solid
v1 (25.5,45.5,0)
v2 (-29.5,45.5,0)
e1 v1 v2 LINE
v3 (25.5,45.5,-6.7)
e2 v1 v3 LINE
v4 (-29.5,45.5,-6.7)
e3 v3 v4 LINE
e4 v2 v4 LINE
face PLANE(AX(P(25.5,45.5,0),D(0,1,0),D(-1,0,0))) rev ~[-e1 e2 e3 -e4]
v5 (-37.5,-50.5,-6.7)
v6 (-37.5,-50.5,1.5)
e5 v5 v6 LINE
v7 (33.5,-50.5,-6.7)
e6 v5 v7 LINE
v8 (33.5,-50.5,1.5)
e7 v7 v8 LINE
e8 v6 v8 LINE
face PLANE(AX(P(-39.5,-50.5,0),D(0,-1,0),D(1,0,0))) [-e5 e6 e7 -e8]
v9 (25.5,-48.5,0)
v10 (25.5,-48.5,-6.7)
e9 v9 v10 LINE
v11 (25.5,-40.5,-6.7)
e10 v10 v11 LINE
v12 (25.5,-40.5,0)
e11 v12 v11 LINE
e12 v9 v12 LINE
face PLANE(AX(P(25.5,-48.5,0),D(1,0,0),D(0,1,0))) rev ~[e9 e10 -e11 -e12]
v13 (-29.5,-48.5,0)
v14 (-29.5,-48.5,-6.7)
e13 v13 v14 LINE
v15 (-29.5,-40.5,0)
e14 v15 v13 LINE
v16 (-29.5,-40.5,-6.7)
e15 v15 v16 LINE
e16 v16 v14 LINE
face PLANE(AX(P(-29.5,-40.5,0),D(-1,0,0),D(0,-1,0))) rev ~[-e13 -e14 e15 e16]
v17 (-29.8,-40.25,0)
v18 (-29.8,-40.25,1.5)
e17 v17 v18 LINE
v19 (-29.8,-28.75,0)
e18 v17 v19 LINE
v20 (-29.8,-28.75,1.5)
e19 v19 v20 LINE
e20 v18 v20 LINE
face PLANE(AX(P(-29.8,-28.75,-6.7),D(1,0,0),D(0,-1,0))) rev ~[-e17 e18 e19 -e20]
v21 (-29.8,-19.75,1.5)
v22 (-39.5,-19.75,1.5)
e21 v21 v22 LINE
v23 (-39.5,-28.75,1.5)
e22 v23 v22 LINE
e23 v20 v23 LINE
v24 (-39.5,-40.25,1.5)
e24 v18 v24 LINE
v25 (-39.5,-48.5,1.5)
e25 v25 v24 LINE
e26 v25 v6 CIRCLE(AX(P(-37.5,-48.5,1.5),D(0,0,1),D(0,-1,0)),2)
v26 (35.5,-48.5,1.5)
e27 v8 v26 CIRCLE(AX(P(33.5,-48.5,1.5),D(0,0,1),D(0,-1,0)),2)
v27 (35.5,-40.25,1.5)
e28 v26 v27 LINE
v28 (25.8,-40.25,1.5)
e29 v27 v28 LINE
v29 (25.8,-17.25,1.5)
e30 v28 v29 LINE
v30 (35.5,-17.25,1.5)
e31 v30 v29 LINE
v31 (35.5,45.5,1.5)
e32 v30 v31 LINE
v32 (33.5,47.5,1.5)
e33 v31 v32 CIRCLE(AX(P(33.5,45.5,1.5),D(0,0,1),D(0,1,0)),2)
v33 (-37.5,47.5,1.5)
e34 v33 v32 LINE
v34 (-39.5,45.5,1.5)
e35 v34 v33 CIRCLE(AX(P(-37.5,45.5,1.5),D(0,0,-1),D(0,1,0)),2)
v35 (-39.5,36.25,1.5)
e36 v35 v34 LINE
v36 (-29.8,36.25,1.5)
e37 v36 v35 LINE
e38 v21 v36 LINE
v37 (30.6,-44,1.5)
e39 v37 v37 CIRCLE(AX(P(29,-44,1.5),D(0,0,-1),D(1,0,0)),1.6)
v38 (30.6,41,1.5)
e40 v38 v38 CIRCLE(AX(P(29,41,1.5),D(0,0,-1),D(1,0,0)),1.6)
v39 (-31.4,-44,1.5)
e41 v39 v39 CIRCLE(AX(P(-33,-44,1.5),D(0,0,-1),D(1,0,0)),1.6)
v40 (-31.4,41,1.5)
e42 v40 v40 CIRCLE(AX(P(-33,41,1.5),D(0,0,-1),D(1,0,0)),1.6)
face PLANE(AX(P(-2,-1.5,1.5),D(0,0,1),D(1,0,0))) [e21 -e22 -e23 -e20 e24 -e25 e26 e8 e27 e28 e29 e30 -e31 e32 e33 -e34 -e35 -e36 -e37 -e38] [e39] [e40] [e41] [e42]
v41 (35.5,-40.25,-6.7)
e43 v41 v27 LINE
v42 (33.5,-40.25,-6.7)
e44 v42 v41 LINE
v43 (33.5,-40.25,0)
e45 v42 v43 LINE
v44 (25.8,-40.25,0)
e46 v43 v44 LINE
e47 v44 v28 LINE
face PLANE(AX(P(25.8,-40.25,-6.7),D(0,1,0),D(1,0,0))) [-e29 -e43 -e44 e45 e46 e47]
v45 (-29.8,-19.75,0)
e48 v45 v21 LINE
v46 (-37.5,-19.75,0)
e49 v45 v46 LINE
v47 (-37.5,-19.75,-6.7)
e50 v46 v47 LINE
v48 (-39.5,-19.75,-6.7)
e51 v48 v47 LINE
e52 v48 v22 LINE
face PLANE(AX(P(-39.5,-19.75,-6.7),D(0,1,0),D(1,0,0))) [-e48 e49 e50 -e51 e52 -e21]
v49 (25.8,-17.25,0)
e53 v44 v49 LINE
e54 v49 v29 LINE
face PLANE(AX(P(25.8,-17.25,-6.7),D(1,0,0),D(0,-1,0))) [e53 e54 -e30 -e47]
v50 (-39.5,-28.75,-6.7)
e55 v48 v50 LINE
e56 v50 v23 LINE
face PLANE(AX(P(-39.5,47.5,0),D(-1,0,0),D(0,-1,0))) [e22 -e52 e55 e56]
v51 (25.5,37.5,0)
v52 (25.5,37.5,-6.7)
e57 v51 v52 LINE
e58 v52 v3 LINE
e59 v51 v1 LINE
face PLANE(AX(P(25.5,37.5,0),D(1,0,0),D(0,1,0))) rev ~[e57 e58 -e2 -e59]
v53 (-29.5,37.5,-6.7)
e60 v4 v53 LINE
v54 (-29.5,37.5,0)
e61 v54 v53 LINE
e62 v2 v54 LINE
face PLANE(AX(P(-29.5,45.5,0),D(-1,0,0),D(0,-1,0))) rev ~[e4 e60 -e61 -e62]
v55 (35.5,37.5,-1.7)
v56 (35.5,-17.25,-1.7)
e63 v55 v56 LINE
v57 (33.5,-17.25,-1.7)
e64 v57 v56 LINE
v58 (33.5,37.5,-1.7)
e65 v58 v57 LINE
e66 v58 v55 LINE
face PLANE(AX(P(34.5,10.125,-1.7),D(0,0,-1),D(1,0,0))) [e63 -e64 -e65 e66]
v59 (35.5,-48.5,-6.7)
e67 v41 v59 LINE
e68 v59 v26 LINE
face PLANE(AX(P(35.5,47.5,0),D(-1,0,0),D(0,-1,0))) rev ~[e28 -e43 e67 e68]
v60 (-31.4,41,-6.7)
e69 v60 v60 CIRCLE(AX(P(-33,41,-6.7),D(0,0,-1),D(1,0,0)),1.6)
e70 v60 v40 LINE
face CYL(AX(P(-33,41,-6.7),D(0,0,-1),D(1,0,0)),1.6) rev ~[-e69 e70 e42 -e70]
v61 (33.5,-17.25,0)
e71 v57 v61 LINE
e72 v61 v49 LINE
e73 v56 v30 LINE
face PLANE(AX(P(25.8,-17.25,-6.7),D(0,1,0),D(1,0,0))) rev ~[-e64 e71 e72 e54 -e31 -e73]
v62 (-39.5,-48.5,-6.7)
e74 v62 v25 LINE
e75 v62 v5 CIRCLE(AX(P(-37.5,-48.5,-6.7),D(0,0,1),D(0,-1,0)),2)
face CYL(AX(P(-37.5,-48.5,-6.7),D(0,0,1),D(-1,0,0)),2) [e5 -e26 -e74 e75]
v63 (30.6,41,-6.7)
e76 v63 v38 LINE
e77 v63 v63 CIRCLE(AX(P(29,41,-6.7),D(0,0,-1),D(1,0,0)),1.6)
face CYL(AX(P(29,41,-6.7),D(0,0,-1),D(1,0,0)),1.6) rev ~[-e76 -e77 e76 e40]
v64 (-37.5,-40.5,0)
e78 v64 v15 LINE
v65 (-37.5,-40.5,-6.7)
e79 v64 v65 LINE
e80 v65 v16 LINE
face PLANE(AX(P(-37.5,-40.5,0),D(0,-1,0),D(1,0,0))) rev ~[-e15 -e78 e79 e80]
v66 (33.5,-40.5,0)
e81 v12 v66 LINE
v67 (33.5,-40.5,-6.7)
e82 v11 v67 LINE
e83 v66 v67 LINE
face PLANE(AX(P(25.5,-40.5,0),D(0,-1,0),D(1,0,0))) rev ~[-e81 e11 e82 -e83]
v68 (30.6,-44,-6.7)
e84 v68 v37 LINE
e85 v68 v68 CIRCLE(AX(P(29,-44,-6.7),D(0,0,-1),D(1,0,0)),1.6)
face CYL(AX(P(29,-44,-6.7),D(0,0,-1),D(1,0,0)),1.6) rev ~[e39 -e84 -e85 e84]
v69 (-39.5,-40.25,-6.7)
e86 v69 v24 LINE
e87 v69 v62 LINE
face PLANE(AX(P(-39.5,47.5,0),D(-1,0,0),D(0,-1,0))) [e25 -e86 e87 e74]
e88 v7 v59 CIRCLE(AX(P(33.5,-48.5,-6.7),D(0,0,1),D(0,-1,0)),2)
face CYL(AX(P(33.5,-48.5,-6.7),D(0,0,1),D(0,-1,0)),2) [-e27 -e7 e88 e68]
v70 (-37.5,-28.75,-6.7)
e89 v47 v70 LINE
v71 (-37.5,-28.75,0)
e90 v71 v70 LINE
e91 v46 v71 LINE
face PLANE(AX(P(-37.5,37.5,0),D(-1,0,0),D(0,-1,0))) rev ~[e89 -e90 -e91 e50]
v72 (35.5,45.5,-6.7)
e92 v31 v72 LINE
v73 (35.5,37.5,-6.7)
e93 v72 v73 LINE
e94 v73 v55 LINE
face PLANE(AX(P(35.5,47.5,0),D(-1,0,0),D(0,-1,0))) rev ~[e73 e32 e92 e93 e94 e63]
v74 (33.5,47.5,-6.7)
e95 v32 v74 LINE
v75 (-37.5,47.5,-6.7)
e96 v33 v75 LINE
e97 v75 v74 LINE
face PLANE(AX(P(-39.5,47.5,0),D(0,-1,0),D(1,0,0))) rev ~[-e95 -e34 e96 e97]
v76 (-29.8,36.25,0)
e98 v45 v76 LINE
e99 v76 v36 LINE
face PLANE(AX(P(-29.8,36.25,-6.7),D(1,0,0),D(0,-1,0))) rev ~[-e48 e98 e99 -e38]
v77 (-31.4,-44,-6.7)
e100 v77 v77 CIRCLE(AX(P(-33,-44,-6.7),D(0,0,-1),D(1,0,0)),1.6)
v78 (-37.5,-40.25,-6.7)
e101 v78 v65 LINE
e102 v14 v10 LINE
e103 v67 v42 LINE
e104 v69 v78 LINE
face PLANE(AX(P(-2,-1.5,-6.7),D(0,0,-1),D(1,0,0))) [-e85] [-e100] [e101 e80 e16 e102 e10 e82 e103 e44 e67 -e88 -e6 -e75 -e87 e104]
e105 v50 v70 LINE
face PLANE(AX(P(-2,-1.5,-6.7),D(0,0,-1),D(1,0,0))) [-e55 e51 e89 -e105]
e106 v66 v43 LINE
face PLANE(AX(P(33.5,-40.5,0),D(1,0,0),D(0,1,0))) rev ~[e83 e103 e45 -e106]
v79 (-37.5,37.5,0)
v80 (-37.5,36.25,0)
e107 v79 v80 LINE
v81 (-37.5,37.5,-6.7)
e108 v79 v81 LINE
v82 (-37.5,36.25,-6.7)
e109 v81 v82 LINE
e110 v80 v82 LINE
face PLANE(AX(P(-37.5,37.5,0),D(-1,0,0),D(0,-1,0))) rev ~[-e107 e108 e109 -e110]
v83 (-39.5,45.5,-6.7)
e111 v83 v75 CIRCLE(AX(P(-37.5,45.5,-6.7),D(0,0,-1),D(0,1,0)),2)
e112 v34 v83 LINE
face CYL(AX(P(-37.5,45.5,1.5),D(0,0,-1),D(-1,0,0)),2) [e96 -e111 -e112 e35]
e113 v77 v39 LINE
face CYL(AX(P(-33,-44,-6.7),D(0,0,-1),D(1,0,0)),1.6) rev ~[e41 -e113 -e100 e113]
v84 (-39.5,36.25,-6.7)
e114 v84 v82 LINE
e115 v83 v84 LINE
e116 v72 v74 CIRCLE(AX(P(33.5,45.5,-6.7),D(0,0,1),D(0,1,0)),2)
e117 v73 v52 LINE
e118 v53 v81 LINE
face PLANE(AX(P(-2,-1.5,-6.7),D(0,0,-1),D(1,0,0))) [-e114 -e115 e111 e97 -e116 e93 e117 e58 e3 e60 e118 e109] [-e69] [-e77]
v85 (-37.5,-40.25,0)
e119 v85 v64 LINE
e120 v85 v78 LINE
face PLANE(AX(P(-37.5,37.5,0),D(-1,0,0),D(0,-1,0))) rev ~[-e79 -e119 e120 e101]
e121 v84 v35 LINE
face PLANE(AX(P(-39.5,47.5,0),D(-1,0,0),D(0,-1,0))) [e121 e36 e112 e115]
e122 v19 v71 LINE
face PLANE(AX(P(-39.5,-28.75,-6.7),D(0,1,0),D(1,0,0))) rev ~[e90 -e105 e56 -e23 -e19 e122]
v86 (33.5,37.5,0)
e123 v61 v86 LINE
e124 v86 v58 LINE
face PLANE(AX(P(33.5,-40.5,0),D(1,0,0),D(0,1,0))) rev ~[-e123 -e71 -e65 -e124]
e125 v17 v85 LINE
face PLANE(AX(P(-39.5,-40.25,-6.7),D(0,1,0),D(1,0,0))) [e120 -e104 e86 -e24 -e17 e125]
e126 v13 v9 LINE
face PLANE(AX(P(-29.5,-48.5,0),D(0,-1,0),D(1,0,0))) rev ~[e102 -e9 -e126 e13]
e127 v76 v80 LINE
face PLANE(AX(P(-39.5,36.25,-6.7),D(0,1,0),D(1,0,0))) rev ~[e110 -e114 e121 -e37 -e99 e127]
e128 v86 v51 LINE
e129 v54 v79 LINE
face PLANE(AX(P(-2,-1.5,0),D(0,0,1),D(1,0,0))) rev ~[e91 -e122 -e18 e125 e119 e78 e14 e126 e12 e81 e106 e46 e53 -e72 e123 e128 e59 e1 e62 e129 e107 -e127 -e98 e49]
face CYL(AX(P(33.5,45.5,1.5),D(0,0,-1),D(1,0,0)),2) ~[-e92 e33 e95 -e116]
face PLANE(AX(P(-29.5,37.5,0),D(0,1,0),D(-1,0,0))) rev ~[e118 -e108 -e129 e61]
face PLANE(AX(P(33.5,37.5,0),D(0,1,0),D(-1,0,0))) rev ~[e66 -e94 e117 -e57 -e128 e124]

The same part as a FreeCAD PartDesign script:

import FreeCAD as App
import Part
import Sketcher

V = App.Vector
Q = App.Units.Quantity


def edges_at(feature, points):
    """Names of the edges that pass closest to the given points."""
    edges = feature.Shape.Edges
    near = lambda p: min(range(len(edges)), key=lambda i: edges[i].distToShape(Part.Vertex(*p))[0])
    return sorted({f"Edge{near(p) + 1}" for p in points})


def add_polygon(sketch, points):
    """Adds a closed chain of lines whose ends are joined by coincident constraints."""
    first, n = sketch.GeometryCount, len(points)
    for a, b in zip(points, points[1:] + points[:1]):
        sketch.addGeometry(Part.LineSegment(App.Vector(*a, 0), App.Vector(*b, 0)), False)
    for i in range(n):
        sketch.addConstraint(Sketcher.Constraint("Coincident", first + i, 2, first + (i + 1) % n, 1))

doc = App.newDocument("Part")
body = doc.addObject("PartDesign::Body", "Body")

sketch1 = body.newObject("Sketcher::SketchObject", "Sketch")
sketch1.AttachmentSupport = (doc.getObject("XY_Plane"), [""])
sketch1.MapMode = "FlatFace"
add_polygon(sketch1, [(-39.5, 47.5), (-39.5, -50.5), (35.5, -50.5), (35.5, 47.5)])
sketch1.addConstraint(Sketcher.Constraint("Vertical", 0))
sketch1.addConstraint(Sketcher.Constraint("Horizontal", 1))
sketch1.addConstraint(Sketcher.Constraint("Vertical", 2))
sketch1.addConstraint(Sketcher.Constraint("Horizontal", 3))
sketch1.addConstraint(Sketcher.Constraint("DistanceX", 1, 1, 1, 2, Q("75 mm")))
sketch1.addConstraint(Sketcher.Constraint("DistanceY", 0, 2, 0, 1, Q("98 mm")))
sketch1.addConstraint(Sketcher.Constraint("DistanceX", 0, 2, -1, 1, Q("39.5 mm")))
sketch1.addConstraint(Sketcher.Constraint("DistanceY", 0, 2, -1, 1, Q("50.5 mm")))
pad1 = body.newObject("PartDesign::Pad", "Pad")
pad1.Profile = sketch1
pad1.Length = 1.5

sketch2 = body.newObject("Sketcher::SketchObject", "Sketch001")
sketch2.AttachmentSupport = (doc.getObject("XY_Plane"), [""])
sketch2.MapMode = "FlatFace"
add_polygon(sketch2, [(-39.5, -50.5), (-39.5, 47.5), (35.5, 47.5), (35.5, -50.5)])
add_polygon(sketch2, [(33.5, 37.5), (25.5, 37.5), (25.5, 45.5), (-29.5, 45.5), (-29.5, 37.5), (-37.5, 37.5), (-37.5, -40.5), (-29.5, -40.5), (-29.5, -48.5), (25.5, -48.5), (25.5, -40.5), (33.5, -40.5)])
sketch2.addConstraint(Sketcher.Constraint("Vertical", 0))
sketch2.addConstraint(Sketcher.Constraint("Horizontal", 1))
sketch2.addConstraint(Sketcher.Constraint("Vertical", 2))
sketch2.addConstraint(Sketcher.Constraint("Horizontal", 3))
sketch2.addConstraint(Sketcher.Constraint("Horizontal", 4))
sketch2.addConstraint(Sketcher.Constraint("Vertical", 5))
sketch2.addConstraint(Sketcher.Constraint("Horizontal", 6))
sketch2.addConstraint(Sketcher.Constraint("Vertical", 7))
sketch2.addConstraint(Sketcher.Constraint("Horizontal", 8))
sketch2.addConstraint(Sketcher.Constraint("Vertical", 9))
sketch2.addConstraint(Sketcher.Constraint("Horizontal", 10))
sketch2.addConstraint(Sketcher.Constraint("Vertical", 11))
sketch2.addConstraint(Sketcher.Constraint("Horizontal", 12))
sketch2.addConstraint(Sketcher.Constraint("Vertical", 13))
sketch2.addConstraint(Sketcher.Constraint("Horizontal", 14))
sketch2.addConstraint(Sketcher.Constraint("Vertical", 15))
sketch2.addConstraint(Sketcher.Constraint("Horizontal", 4, 2, 7, 2))
sketch2.addConstraint(Sketcher.Constraint("Horizontal", 10, 2, 13, 2))
sketch2.addConstraint(Sketcher.Constraint("Vertical", 7, 2, 10, 2))
sketch2.addConstraint(Sketcher.Constraint("Vertical", 5, 2, 12, 2))
sketch2.addConstraint(Sketcher.Constraint("Equal", 4, 8))
sketch2.addConstraint(Sketcher.Constraint("Equal", 14, 5))
sketch2.addConstraint(Sketcher.Constraint("Equal", 7, 11))
sketch2.addConstraint(Sketcher.Constraint("DistanceX", 1, 1, 1, 2, Q("75 mm")))
sketch2.addConstraint(Sketcher.Constraint("DistanceX", 4, 2, 4, 1, Q("8 mm")))
sketch2.addConstraint(Sketcher.Constraint("DistanceX", 6, 2, 6, 1, Q("55 mm")))
sketch2.addConstraint(Sketcher.Constraint("DistanceY", 0, 1, 0, 2, Q("98 mm")))
sketch2.addConstraint(Sketcher.Constraint("DistanceY", 9, 2, 9, 1, Q("78 mm")))
sketch2.addConstraint(Sketcher.Constraint("DistanceX", 4, 2, 1, 2, Q("10 mm")))
sketch2.addConstraint(Sketcher.Constraint("DistanceY", 4, 2, 1, 2, Q("10 mm")))
sketch2.addConstraint(Sketcher.Constraint("DistanceX", 0, 2, -1, 1, Q("39.5 mm")))
sketch2.addConstraint(Sketcher.Constraint("DistanceY", -1, 1, 0, 2, Q("47.5 mm")))
pad2 = body.newObject("PartDesign::Pad", "Pad001")
pad2.Profile = sketch2
pad2.Length = 6.7
pad2.Reversed = True

sketch3 = body.newObject("Sketcher::SketchObject", "Sketch002")
sketch3.AttachmentSupport = (doc.getObject("XY_Plane"), [""])
sketch3.MapMode = "FlatFace"
sketch3.AttachmentOffset = App.Placement(V(0, 0, -6.7), App.Rotation())
add_polygon(sketch3, [(-39.5, -19.75), (-39.5, 36.25), (-29.8, 36.25), (-29.8, -19.75)])
add_polygon(sketch3, [(-39.5, -40.25), (-39.5, -28.75), (-29.8, -28.75), (-29.8, -40.25)])
add_polygon(sketch3, [(25.8, -40.25), (25.8, -17.25), (35.5, -17.25), (35.5, -40.25)])
sketch3.addConstraint(Sketcher.Constraint("Vertical", 0))
sketch3.addConstraint(Sketcher.Constraint("Horizontal", 1))
sketch3.addConstraint(Sketcher.Constraint("Vertical", 2))
sketch3.addConstraint(Sketcher.Constraint("Horizontal", 3))
sketch3.addConstraint(Sketcher.Constraint("Vertical", 4))
sketch3.addConstraint(Sketcher.Constraint("Horizontal", 5))
sketch3.addConstraint(Sketcher.Constraint("Vertical", 6))
sketch3.addConstraint(Sketcher.Constraint("Horizontal", 7))
sketch3.addConstraint(Sketcher.Constraint("Vertical", 8))
sketch3.addConstraint(Sketcher.Constraint("Horizontal", 9))
sketch3.addConstraint(Sketcher.Constraint("Vertical", 10))
sketch3.addConstraint(Sketcher.Constraint("Horizontal", 11))
sketch3.addConstraint(Sketcher.Constraint("Horizontal", 7, 2, 10, 2))
sketch3.addConstraint(Sketcher.Constraint("Vertical", 3, 2, 4, 2))
sketch3.addConstraint(Sketcher.Constraint("Vertical", 2, 2, 5, 2))
sketch3.addConstraint(Sketcher.Constraint("Equal", 7, 9))
sketch3.addConstraint(Sketcher.Constraint("DistanceY", 0, 1, 0, 2, Q("56 mm")))
sketch3.addConstraint(Sketcher.Constraint("DistanceY", 8, 1, 8, 2, Q("23 mm")))
sketch3.addConstraint(Sketcher.Constraint("DistanceX", 1, 1, 1, 2, Q("9.7 mm")))
sketch3.addConstraint(Sketcher.Constraint("DistanceY", 4, 1, 4, 2, Q("11.5 mm")))
sketch3.addConstraint(Sketcher.Constraint("DistanceY", 4, 2, 3, 2, Q("9 mm")))
sketch3.addConstraint(Sketcher.Constraint("DistanceX", 3, 2, 9, 2, Q("75 mm")))
sketch3.addConstraint(Sketcher.Constraint("DistanceX", 0, 2, -1, 1, Q("39.5 mm")))
sketch3.addConstraint(Sketcher.Constraint("DistanceY", -1, 1, 0, 2, Q("36.25 mm")))
pocket1 = body.newObject("PartDesign::Pocket", "Pocket")
pocket1.Profile = sketch3
pocket1.Length = 25
pocket1.Reversed = True

sketch4 = body.newObject("Sketcher::SketchObject", "Sketch003")
sketch4.AttachmentSupport = (doc.getObject("XY_Plane"), [""])
sketch4.MapMode = "FlatFace"
sketch4.AttachmentOffset = App.Placement(V(0, 0, -6.7), App.Rotation())
sketch4.addGeometry(Part.Circle(V(29, 41, 0), V(0, 0, 1), 1.6), False)
sketch4.addGeometry(Part.Circle(V(-33, 41, 0), V(0, 0, 1), 1.6), False)
sketch4.addGeometry(Part.Circle(V(-33, -44, 0), V(0, 0, 1), 1.6), False)
sketch4.addGeometry(Part.Circle(V(29, -44, 0), V(0, 0, 1), 1.6), False)
sketch4.addConstraint(Sketcher.Constraint("Equal", 0, 1))
sketch4.addConstraint(Sketcher.Constraint("Equal", 1, 2))
sketch4.addConstraint(Sketcher.Constraint("Equal", 2, 3))
sketch4.addConstraint(Sketcher.Constraint("Horizontal", 0, 3, 1, 3))
sketch4.addConstraint(Sketcher.Constraint("Horizontal", 2, 3, 3, 3))
sketch4.addConstraint(Sketcher.Constraint("Vertical", 1, 3, 2, 3))
sketch4.addConstraint(Sketcher.Constraint("Vertical", 0, 3, 3, 3))
sketch4.addConstraint(Sketcher.Constraint("Diameter", 0, Q("3.2 mm")))
sketch4.addConstraint(Sketcher.Constraint("DistanceX", -1, 1, 0, 3, Q("29 mm")))
sketch4.addConstraint(Sketcher.Constraint("DistanceY", -1, 1, 0, 3, Q("41 mm")))
sketch4.addConstraint(Sketcher.Constraint("DistanceX", 1, 3, -1, 1, Q("33 mm")))
sketch4.addConstraint(Sketcher.Constraint("DistanceY", 2, 3, -1, 1, Q("44 mm")))
pocket2 = body.newObject("PartDesign::Pocket", "Pocket001")
pocket2.Profile = sketch4
pocket2.Length = 25
pocket2.Reversed = True

sketch5 = body.newObject("Sketcher::SketchObject", "Sketch004")
sketch5.AttachmentSupport = (doc.getObject("XY_Plane"), [""])
sketch5.MapMode = "FlatFace"
sketch5.AttachmentOffset = App.Placement(V(0, 0, -6.7), App.Rotation())
add_polygon(sketch5, [(33.5, -17.25), (33.5, 37.5), (35.5, 37.5), (35.5, -17.25)])
sketch5.addConstraint(Sketcher.Constraint("Vertical", 0))
sketch5.addConstraint(Sketcher.Constraint("Horizontal", 1))
sketch5.addConstraint(Sketcher.Constraint("Vertical", 2))
sketch5.addConstraint(Sketcher.Constraint("Horizontal", 3))
sketch5.addConstraint(Sketcher.Constraint("DistanceX", 1, 1, 1, 2, Q("2 mm")))
sketch5.addConstraint(Sketcher.Constraint("DistanceY", 0, 1, 0, 2, Q("54.75 mm")))
sketch5.addConstraint(Sketcher.Constraint("DistanceX", -1, 1, 0, 2, Q("33.5 mm")))
sketch5.addConstraint(Sketcher.Constraint("DistanceY", -1, 1, 0, 2, Q("37.5 mm")))
pocket3 = body.newObject("PartDesign::Pocket", "Pocket002")
pocket3.Profile = sketch5
pocket3.Length = 5
pocket3.Reversed = True
doc.recompute()

fillet = body.newObject("PartDesign::Fillet", "Fillet")
fillet.Base = (pocket3, edges_at(pocket3, [
    (-39.5, 47.5, -2.6),
    (35.5, 47.5, -2.6),
    (-39.5, -50.5, -2.6),
    (35.5, -50.5, -2.6),
]))
fillet.Radius = 2

doc.recompute()
